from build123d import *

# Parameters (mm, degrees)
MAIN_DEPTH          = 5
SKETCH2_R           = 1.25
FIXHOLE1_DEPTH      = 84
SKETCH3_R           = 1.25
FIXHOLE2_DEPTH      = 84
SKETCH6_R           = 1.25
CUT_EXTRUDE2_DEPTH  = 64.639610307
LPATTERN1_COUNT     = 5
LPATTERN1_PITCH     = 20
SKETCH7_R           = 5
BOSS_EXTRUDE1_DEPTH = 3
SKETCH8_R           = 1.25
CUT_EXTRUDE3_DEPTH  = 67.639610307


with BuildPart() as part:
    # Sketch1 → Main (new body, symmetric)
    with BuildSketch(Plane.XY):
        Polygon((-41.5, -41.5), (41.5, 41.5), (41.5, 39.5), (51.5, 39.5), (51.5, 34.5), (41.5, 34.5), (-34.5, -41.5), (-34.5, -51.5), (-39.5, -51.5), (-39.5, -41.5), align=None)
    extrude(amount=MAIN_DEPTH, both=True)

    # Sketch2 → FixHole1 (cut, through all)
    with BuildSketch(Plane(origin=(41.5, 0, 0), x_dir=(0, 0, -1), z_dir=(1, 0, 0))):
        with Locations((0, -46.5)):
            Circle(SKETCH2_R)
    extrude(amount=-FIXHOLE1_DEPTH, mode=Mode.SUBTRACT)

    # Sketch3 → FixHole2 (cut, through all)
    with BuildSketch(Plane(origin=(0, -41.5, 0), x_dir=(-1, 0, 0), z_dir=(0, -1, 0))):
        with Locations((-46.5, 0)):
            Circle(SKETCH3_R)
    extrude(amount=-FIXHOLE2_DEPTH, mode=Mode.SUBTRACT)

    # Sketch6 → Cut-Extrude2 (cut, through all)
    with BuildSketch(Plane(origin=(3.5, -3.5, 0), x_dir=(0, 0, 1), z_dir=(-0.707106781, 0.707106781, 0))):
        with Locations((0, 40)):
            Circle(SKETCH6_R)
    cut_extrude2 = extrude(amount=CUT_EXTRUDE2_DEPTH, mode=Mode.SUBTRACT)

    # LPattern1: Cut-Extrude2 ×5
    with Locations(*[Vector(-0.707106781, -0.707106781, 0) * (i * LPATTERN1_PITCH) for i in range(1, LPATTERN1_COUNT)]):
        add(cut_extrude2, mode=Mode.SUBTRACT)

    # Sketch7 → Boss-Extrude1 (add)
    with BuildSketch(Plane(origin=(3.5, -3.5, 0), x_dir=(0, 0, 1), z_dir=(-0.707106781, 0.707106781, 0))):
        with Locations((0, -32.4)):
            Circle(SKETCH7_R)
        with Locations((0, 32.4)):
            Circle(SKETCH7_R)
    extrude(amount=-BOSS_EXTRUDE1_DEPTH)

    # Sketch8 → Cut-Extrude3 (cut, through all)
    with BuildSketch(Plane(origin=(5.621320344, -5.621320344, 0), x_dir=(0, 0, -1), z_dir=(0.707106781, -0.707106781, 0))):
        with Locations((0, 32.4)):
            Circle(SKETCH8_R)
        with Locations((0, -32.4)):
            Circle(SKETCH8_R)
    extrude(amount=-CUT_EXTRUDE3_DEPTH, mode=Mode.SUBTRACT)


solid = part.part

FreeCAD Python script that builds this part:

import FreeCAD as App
import Part
import Sketcher


def add_polygon(sketch, points):
    """Adds a closed chain of lines whose ends are joined by coincident constraints."""
    first, n = sketch.GeometryCount, len(points)
    for a, b in zip(points, points[1:] + points[:1]):
        sketch.addGeometry(Part.LineSegment(App.Vector(*a, 0), App.Vector(*b, 0)), False)
    for i in range(n):
        sketch.addConstraint(Sketcher.Constraint("Coincident", first + i, 2, first + (i + 1) % n, 1))

doc = App.newDocument("Part")
params = doc.addObject("Spreadsheet::Sheet", "Params")
for row, (alias, value) in enumerate([
    ("sketch1_width", "2 mm"),
    ("sketch1_width2", "5 mm"),
    ("sketch1_width3", "10 mm"),
    ("pad1_length", "10 mm"),
    ("sketch2_diameter", "2.5 mm"),
    ("sketch3_diameter", "2.5 mm"),
    ("sketch4_diameter", "2.5 mm"),
    ("linearpattern_pitch", "20 mm"),
    ("sketch5_diameter", "10 mm"),
    ("pad2_length", "3 mm"),
    ("sketch6_diameter", "2.5 mm"),
], start=1):
    params.set(f"A{row}", alias)
    params.set(f"B{row}", "=" + value)
    params.setAlias(f"B{row}", alias)

body = doc.addObject("PartDesign::Body", "Body")

# Sketch on XY plane
sketch1 = body.newObject("Sketcher::SketchObject", "Sketch")
sketch1.AttachmentSupport = (doc.getObject("XY_Plane"), [""])
sketch1.MapMode = "FlatFace"
add_polygon(sketch1, [(41.5, 41.5), (-41.5, -41.5), (-39.5, -41.5), (-39.5, -51.5), (-34.5, -51.5), (-34.5, -41.5), (41.5, 34.5), (51.5, 34.5), (51.5, 39.5), (41.5, 39.5)])  # lines 0-9
sketch1.addConstraint(Sketcher.Constraint("Horizontal", 1))
sketch1.addConstraint(Sketcher.Constraint("Vertical", 2))
sketch1.addConstraint(Sketcher.Constraint("Horizontal", 3))
sketch1.addConstraint(Sketcher.Constraint("Vertical", 4))
sketch1.addConstraint(Sketcher.Constraint("Horizontal", 6))
sketch1.addConstraint(Sketcher.Constraint("Vertical", 7))
sketch1.addConstraint(Sketcher.Constraint("Horizontal", 8))
sketch1.addConstraint(Sketcher.Constraint("Vertical", 9))
sketch1.addConstraint(Sketcher.Constraint("Symmetric", 0, 2, 9, 2, -1, 1))
sketch1.addConstraint(Sketcher.Constraint("Parallel", 0, 5))
sketch1.addConstraint(Sketcher.Constraint("Horizontal", 1, 2, 4, 2))
sketch1.addConstraint(Sketcher.Constraint("Vertical", 5, 2, 8, 2))
sketch1.addConstraint(Sketcher.Constraint("Equal", 8, 2))
sketch1.addConstraint(Sketcher.Constraint("Equal", 3, 7))
sketch1.addConstraint(Sketcher.Constraint("Equal", 1, 9))
sketch1.addConstraint(Sketcher.Constraint("DistanceX", 1, 1, 1, 2, 2.0))
sketch1.addConstraint(Sketcher.Constraint("DistanceX", 3, 1, 3, 2, 5.0))
sketch1.addConstraint(Sketcher.Constraint("DistanceX", 6, 1, 6, 2, 10.0))
sketch1.addConstraint(Sketcher.Constraint("DistanceX", 4, 2, 5, 2, 76.0))
sketch1.setExpression("Constraints[25]", "Params.sketch1_width")
sketch1.setExpression("Constraints[26]", "Params.sketch1_width2")
sketch1.setExpression("Constraints[27]", "Params.sketch1_width3")
pad1 = body.newObject("PartDesign::Pad", "Pad")
pad1.Profile = sketch1
pad1.setExpression("Length", "Params.pad1_length")
pad1.Midplane = True

# Sketch on YZ plane
sketch2 = body.newObject("Sketcher::SketchObject", "Sketch001")
sketch2.AttachmentSupport = (doc.getObject("YZ_Plane"), [""])
sketch2.MapMode = "FlatFace"
sketch2.AttachmentOffset = App.Placement(App.Vector(0, 0, 41.5), App.Rotation())
sketch2.addGeometry(Part.Circle(App.Vector(-46.5, 0, 0), App.Vector(0, 0, 1), 1.2), False)
sketch2.addConstraint(Sketcher.Constraint("PointOnObject", 0, 3, -1))
sketch2.addConstraint(Sketcher.Constraint("Diameter", 0, 2.5))
sketch2.addConstraint(Sketcher.Constraint("DistanceX", 0, 3, -1, 1, 46.5))
sketch2.setExpression("Constraints[1]", "Params.sketch2_diameter")
pocket1 = body.newObject("PartDesign::Pocket", "Pocket")
pocket1.Profile = sketch2
pocket1.Type = "ThroughAll"

# Sketch on XZ plane
sketch3 = body.newObject("Sketcher::SketchObject", "Sketch002")
sketch3.AttachmentSupport = (doc.getObject("XZ_Plane"), [""])
sketch3.MapMode = "FlatFace"
sketch3.AttachmentOffset = App.Placement(App.Vector(0, 0, 41.5), App.Rotation())
sketch3.addGeometry(Part.Circle(App.Vector(46.5, 0, 0), App.Vector(0, 0, 1), 1.2), False)
sketch3.addConstraint(Sketcher.Constraint("PointOnObject", 0, 3, -1))
sketch3.addConstraint(Sketcher.Constraint("Diameter", 0, 2.5))
sketch3.addConstraint(Sketcher.Constraint("DistanceX", -1, 1, 0, 3, 46.5))
sketch3.setExpression("Constraints[1]", "Params.sketch3_diameter")
pocket2 = body.newObject("PartDesign::Pocket", "Pocket001")
pocket2.Profile = sketch3
pocket2.Type = "ThroughAll"

# Sketch on an angled plane
sketch4 = body.newObject("Sketcher::SketchObject", "Sketch003")
sketch4.Placement = App.Placement(App.Vector(3.5, -3.5, 0), App.Rotation(App.Vector(0, 0, 1), App.Vector(0.707106781, 0.707106781, 0), App.Vector(-0.707106781, 0.707106781, 0), "ZXY"))
sketch4.addGeometry(Part.Circle(App.Vector(0, 40, 0), App.Vector(0, 0, 1), 1.2), False)
sketch4.addConstraint(Sketcher.Constraint("PointOnObject", 0, 3, -2))
sketch4.addConstraint(Sketcher.Constraint("Diameter", 0, 2.5))
sketch4.addConstraint(Sketcher.Constraint("DistanceY", -1, 1, 0, 3, 40.0))
sketch4.setExpression("Constraints[1]", "Params.sketch4_diameter")
pocket3 = body.newObject("PartDesign::Pocket", "Pocket002")
pocket3.Profile = sketch4
pocket3.Type = "ThroughAll"
pocket3.Reversed = True
doc.recompute()

datumline = body.newObject("PartDesign::Line", "DatumLine")
datumline.Placement = App.Placement(App.Vector(0, 0, 0), App.Rotation(App.Vector(0, 0, 1), App.Vector(-0.707106781, -0.707106781, 0)))
linearpattern = body.newObject("PartDesign::LinearPattern", "LinearPattern")
linearpattern.Originals = [pocket3]
linearpattern.Direction = (datumline, [""])
linearpattern.Mode = "offset"
linearpattern.setExpression("Offset", "Params.linearpattern_pitch")
linearpattern.Occurrences = 5
body.Tip = linearpattern

# Sketch on an angled plane
sketch5 = body.newObject("Sketcher::SketchObject", "Sketch004")
sketch5.Placement = App.Placement(App.Vector(3.5, -3.5, 0), App.Rotation(App.Vector(0, 0, 1), App.Vector(0.707106781, 0.707106781, 0), App.Vector(-0.707106781, 0.707106781, 0), "ZXY"))
sketch5.addGeometry(Part.Circle(App.Vector(0, -32, 0), App.Vector(0, 0, 1), 5), False)
sketch5.addGeometry(Part.Circle(App.Vector(0, 32, 0), App.Vector(0, 0, 1), 5), False)
sketch5.addConstraint(Sketcher.Constraint("Equal", 0, 1))
sketch5.addConstraint(Sketcher.Constraint("Symmetric", 0, 3, 1, 3, -1, 1))
sketch5.addConstraint(Sketcher.Constraint("PointOnObject", 0, 3, -2))
sketch5.addConstraint(Sketcher.Constraint("Diameter", 0, 10.0))
sketch5.addConstraint(Sketcher.Constraint("DistanceY", 0, 3, -1, 1, 32.4))
sketch5.setExpression("Constraints[3]", "Params.sketch5_diameter")
pad2 = body.newObject("PartDesign::Pad", "Pad001")
pad2.Profile = sketch5
pad2.setExpression("Length", "Params.pad2_length")
pad2.Reversed = True

# Sketch on an angled plane
sketch6 = body.newObject("Sketcher::SketchObject", "Sketch005")
sketch6.Placement = App.Placement(App.Vector(5.62132, -5.62132, 0), App.Rotation(App.Vector(0, 0, -1), App.Vector(0.707106781, 0.707106781, 0), App.Vector(0.707106781, -0.707106781, 0), "ZXY"))
sketch6.addGeometry(Part.Circle(App.Vector(0, 32.4, 0), App.Vector(0, 0, 1), 1.2), False)
sketch6.addGeometry(Part.Circle(App.Vector(0, -32.4, 0), App.Vector(0, 0, 1), 1.2), False)
sketch6.addConstraint(Sketcher.Constraint("Equal", 0, 1))
sketch6.addConstraint(Sketcher.Constraint("Symmetric", 0, 3, 1, 3, -1, 1))
sketch6.addConstraint(Sketcher.Constraint("PointOnObject", 0, 3, -2))
sketch6.addConstraint(Sketcher.Constraint("Diameter", 0, 2.5))
sketch6.addConstraint(Sketcher.Constraint("DistanceY", -1, 1, 0, 3, 32.4))
sketch6.setExpression("Constraints[3]", "Params.sketch6_diameter")
pocket4 = body.newObject("PartDesign::Pocket", "Pocket003")
pocket4.Profile = sketch6
pocket4.Type = "ThroughAll"

doc.recompute()
